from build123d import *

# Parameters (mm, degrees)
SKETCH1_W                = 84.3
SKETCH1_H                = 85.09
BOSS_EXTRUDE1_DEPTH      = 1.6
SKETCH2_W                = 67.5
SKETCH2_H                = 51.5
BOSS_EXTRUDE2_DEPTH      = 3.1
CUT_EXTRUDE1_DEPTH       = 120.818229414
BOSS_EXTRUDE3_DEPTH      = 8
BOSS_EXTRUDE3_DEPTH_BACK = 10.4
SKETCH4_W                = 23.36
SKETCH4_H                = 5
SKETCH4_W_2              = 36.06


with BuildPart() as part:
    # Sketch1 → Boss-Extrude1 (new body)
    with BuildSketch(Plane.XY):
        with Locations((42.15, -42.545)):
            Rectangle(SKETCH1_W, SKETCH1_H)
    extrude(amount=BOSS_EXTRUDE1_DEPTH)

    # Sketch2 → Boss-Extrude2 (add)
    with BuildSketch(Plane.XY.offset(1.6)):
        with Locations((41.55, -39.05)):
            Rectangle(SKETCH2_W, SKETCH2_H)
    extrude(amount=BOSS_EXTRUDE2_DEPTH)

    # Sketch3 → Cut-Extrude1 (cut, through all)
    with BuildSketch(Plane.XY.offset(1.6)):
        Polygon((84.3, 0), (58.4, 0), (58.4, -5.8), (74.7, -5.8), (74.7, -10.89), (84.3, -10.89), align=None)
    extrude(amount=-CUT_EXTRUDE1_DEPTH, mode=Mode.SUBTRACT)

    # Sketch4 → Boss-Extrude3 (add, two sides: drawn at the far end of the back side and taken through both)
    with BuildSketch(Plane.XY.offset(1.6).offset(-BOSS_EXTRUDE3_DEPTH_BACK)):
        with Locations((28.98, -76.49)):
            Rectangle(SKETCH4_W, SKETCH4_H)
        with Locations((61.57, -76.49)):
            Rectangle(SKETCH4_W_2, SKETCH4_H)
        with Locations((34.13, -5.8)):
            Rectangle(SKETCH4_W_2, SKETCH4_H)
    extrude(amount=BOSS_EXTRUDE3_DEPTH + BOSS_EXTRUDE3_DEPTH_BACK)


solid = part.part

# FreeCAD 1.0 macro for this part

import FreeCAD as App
import Part
import Sketcher
from FreeCAD import Vector
Q = App.Units.Quantity

doc = App.newDocument("Part")
body = doc.addObject("PartDesign::Body", "Body")

# Sketch on XY plane
sketch1 = doc.addObject("Sketcher::SketchObject", "Sketch")
body.addObject(sketch1)
sketch1.AttachmentSupport = (doc.XY_Plane, [""])
sketch1.MapMode = "FlatFace"
sketch1.addGeometry([
    Part.LineSegment(Vector(0, 0, 0), Vector(0, -85, 0)),
    Part.LineSegment(Vector(0, -85, 0), Vector(84, -85, 0)),
    Part.LineSegment(Vector(84, -85, 0), Vector(84, 0, 0)),
    Part.LineSegment(Vector(84, 0, 0), Vector(0, 0, 0)),
], False)
sketch1.addConstraint([
    Sketcher.Constraint("Coincident", 0, 2, 1, 1),
    Sketcher.Constraint("Coincident", 1, 2, 2, 1),
    Sketcher.Constraint("Coincident", 2, 2, 3, 1),
    Sketcher.Constraint("Coincident", 3, 2, 0, 1),
    Sketcher.Constraint("Vertical", 0),
    Sketcher.Constraint("Horizontal", 1),
    Sketcher.Constraint("Vertical", 2),
    Sketcher.Constraint("Horizontal", 3),
    Sketcher.Constraint("Coincident", 3, 2, -1, 1),
    Sketcher.Constraint("DistanceX", 1, 1, 1, 2, Q("84.3 mm")),
    Sketcher.Constraint("DistanceY", 0, 2, 0, 1, Q("85.09 mm")),
])
pad1 = doc.addObject("PartDesign::Pad", "Pad")
body.addObject(pad1)
pad1.Profile = sketch1
pad1.Length = 1.6

# Sketch on XY plane
sketch2 = doc.addObject("Sketcher::SketchObject", "Sketch001")
body.addObject(sketch2)
sketch2.AttachmentSupport = (doc.XY_Plane, [""])
sketch2.MapMode = "FlatFace"
sketch2.AttachmentOffset = App.Placement(Vector(0, 0, 1.6), App.Rotation())
sketch2.addGeometry([
    Part.LineSegment(Vector(8, -13, 0), Vector(8, -65, 0)),
    Part.LineSegment(Vector(8, -65, 0), Vector(75, -65, 0)),
    Part.LineSegment(Vector(75, -65, 0), Vector(75, -13, 0)),
    Part.LineSegment(Vector(75, -13, 0), Vector(8, -13, 0)),
], False)
sketch2.addConstraint([
    Sketcher.Constraint("Coincident", 0, 2, 1, 1),
    Sketcher.Constraint("Coincident", 1, 2, 2, 1),
    Sketcher.Constraint("Coincident", 2, 2, 3, 1),
    Sketcher.Constraint("Coincident", 3, 2, 0, 1),
    Sketcher.Constraint("Vertical", 0),
    Sketcher.Constraint("Horizontal", 1),
    Sketcher.Constraint("Vertical", 2),
    Sketcher.Constraint("Horizontal", 3),
    Sketcher.Constraint("DistanceX", 1, 1, 1, 2, Q("67.5 mm")),
    Sketcher.Constraint("DistanceY", 0, 2, 0, 1, Q("51.5 mm")),
    Sketcher.Constraint("DistanceX", -1, 1, 0, 2, Q("7.8 mm")),
    Sketcher.Constraint("DistanceY", 0, 2, -1, 1, Q("64.8 mm")),
])
pad2 = doc.addObject("PartDesign::Pad", "Pad001")
body.addObject(pad2)
pad2.Profile = sketch2
pad2.Length = 3.1

# Sketch on XY plane
sketch3 = doc.addObject("Sketcher::SketchObject", "Sketch002")
body.addObject(sketch3)
sketch3.AttachmentSupport = (doc.XY_Plane, [""])
sketch3.MapMode = "FlatFace"
sketch3.AttachmentOffset = App.Placement(Vector(0, 0, 1.6), App.Rotation())
sketch3.addGeometry([
    Part.LineSegment(Vector(84, 0, 0), Vector(58, 0, 0)),  # 0
    Part.LineSegment(Vector(58, 0, 0), Vector(58, -6, 0)),  # 1
    Part.LineSegment(Vector(58, -6, 0), Vector(75, -6, 0)),  # 2
    Part.LineSegment(Vector(75, -6, 0), Vector(75, -11, 0)),  # 3
    Part.LineSegment(Vector(75, -11, 0), Vector(84, -11, 0)),  # 4
    Part.LineSegment(Vector(84, -11, 0), Vector(84, 0, 0)),  # 5
], False)
sketch3.addConstraint([
    Sketcher.Constraint("Coincident", 0, 2, 1, 1),
    Sketcher.Constraint("Coincident", 1, 2, 2, 1),
    Sketcher.Constraint("Coincident", 2, 2, 3, 1),
    Sketcher.Constraint("Coincident", 3, 2, 4, 1),
    Sketcher.Constraint("Coincident", 4, 2, 5, 1),
    Sketcher.Constraint("Coincident", 5, 2, 0, 1),
    Sketcher.Constraint("Horizontal", 0),
    Sketcher.Constraint("Vertical", 1),
    Sketcher.Constraint("Horizontal", 2),
    Sketcher.Constraint("Vertical", 3),
    Sketcher.Constraint("Horizontal", 4),
    Sketcher.Constraint("Vertical", 5),
    Sketcher.Constraint("PointOnObject", 0, 2, -1),
    Sketcher.Constraint("DistanceX", 0, 2, 0, 1, Q("25.9 mm")),
    Sketcher.Constraint("DistanceX", 2, 1, 2, 2, Q("16.3 mm")),
    Sketcher.Constraint("DistanceY", 1, 2, 1, 1, Q("5.8 mm")),
    Sketcher.Constraint("DistanceY", 3, 2, 3, 1, Q("5.09 mm")),
    Sketcher.Constraint("DistanceX", -1, 1, 0, 2, Q("58.4 mm")),
])
pocket1 = doc.addObject("PartDesign::Pocket", "Pocket")
body.addObject(pocket1)
pocket1.Profile = sketch3
pocket1.Type = "ThroughAll"

# Sketch on XY plane
sketch4 = doc.addObject("Sketcher::SketchObject", "Sketch003")
body.addObject(sketch4)
sketch4.AttachmentSupport = (doc.XY_Plane, [""])
sketch4.MapMode = "FlatFace"
sketch4.AttachmentOffset = App.Placement(Vector(0, 0, 1.6), App.Rotation())
sketch4.addGeometry([
    Part.LineSegment(Vector(17, -74, 0), Vector(17, -79, 0)),  # 0
    Part.LineSegment(Vector(17, -79, 0), Vector(41, -79, 0)),  # 1
    Part.LineSegment(Vector(41, -79, 0), Vector(41, -74, 0)),  # 2
    Part.LineSegment(Vector(41, -74, 0), Vector(17, -74, 0)),  # 3
    Part.LineSegment(Vector(44, -74, 0), Vector(44, -79, 0)),  # 4
    Part.LineSegment(Vector(44, -79, 0), Vector(80, -79, 0)),  # 5
    Part.LineSegment(Vector(80, -79, 0), Vector(80, -74, 0)),  # 6
    Part.LineSegment(Vector(80, -74, 0), Vector(44, -74, 0)),  # 7
    Part.LineSegment(Vector(16, -3, 0), Vector(16, -8, 0)),  # 8
    Part.LineSegment(Vector(16, -8, 0), Vector(52, -8, 0)),  # 9
    Part.LineSegment(Vector(52, -8, 0), Vector(52, -3, 0)),  # 10
    Part.LineSegment(Vector(52, -3, 0), Vector(16, -3, 0)),  # 11
], False)
sketch4.addConstraint([
    Sketcher.Constraint("Coincident", 0, 2, 1, 1),
    Sketcher.Constraint("Coincident", 1, 2, 2, 1),
    Sketcher.Constraint("Coincident", 2, 2, 3, 1),
    Sketcher.Constraint("Coincident", 3, 2, 0, 1),
    Sketcher.Constraint("Coincident", 4, 2, 5, 1),
    Sketcher.Constraint("Coincident", 5, 2, 6, 1),
    Sketcher.Constraint("Coincident", 6, 2, 7, 1),
    Sketcher.Constraint("Coincident", 7, 2, 4, 1),
    Sketcher.Constraint("Coincident", 8, 2, 9, 1),
    Sketcher.Constraint("Coincident", 9, 2, 10, 1),
    Sketcher.Constraint("Coincident", 10, 2, 11, 1),
    Sketcher.Constraint("Coincident", 11, 2, 8, 1),
    Sketcher.Constraint("Vertical", 0),
    Sketcher.Constraint("Horizontal", 1),
    Sketcher.Constraint("Vertical", 2),
    Sketcher.Constraint("Horizontal", 3),
    Sketcher.Constraint("Vertical", 4),
    Sketcher.Constraint("Horizontal", 5),
    Sketcher.Constraint("Vertical", 6),
    Sketcher.Constraint("Horizontal", 7),
    Sketcher.Constraint("Vertical", 8),
    Sketcher.Constraint("Horizontal", 9),
    Sketcher.Constraint("Vertical", 10),
    Sketcher.Constraint("Horizontal", 11),
    Sketcher.Constraint("Horizontal", 1, 2, 4, 2),
    Sketcher.Constraint("Horizontal", 3, 2, 6, 2),
    Sketcher.Constraint("Equal", 7, 9),
    Sketcher.Constraint("Equal", 6, 8),
    Sketcher.Constraint("DistanceY", 0, 2, 0, 1, Q("5 mm")),
    Sketcher.Constraint("DistanceX", 1, 1, 1, 2, Q("23.36 mm")),
    Sketcher.Constraint("DistanceX", 5, 1, 5, 2, Q("36.06 mm")),
    Sketcher.Constraint("DistanceX", -1, 1, 0, 2, Q("17.3 mm")),
    Sketcher.Constraint("DistanceX", -1, 1, 5, 2, Q("79.6 mm")),
    Sketcher.Constraint("DistanceX", -1, 1, 8, 2, Q("16.1 mm")),
    Sketcher.Constraint("DistanceY", 8, 2, -1, 1, Q("8.3 mm")),
    Sketcher.Constraint("DistanceY", 0, 2, -1, 1, Q("78.99 mm")),
])
pad3 = doc.addObject("PartDesign::Pad", "Pad002")
body.addObject(pad3)
pad3.Profile = sketch4
pad3.Type = "TwoLengths"
pad3.Length = 8
pad3.Length2 = 10.4

doc.recompute()
